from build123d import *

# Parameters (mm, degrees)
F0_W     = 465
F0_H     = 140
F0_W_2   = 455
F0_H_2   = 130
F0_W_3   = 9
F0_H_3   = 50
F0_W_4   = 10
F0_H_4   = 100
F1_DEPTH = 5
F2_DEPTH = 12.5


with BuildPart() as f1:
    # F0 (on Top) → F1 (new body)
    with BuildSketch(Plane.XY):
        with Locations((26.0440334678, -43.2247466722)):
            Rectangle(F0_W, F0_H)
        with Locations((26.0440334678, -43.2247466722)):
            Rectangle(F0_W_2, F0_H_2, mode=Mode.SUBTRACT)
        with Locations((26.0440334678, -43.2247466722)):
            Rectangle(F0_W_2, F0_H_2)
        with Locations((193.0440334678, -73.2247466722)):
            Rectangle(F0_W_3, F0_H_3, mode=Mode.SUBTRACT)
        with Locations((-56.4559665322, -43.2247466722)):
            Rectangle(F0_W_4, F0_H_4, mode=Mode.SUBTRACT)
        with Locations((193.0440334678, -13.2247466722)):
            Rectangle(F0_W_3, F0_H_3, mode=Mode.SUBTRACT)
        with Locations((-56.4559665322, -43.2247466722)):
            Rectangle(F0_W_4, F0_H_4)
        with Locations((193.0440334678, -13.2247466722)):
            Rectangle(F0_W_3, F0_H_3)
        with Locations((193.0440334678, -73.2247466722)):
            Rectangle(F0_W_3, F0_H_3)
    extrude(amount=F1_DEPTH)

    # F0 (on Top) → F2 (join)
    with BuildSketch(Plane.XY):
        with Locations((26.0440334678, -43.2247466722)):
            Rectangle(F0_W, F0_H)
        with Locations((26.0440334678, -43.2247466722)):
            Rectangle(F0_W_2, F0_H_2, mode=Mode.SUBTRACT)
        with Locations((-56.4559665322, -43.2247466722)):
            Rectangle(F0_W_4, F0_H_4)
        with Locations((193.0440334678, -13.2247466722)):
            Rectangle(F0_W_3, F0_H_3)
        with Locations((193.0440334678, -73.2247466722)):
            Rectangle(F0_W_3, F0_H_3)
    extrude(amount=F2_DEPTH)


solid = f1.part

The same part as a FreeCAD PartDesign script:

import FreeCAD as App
import Part
import Sketcher


def add_polygon(sketch, points):
    """Adds a closed chain of lines whose ends are joined by coincident constraints."""
    first, n = sketch.GeometryCount, len(points)
    for a, b in zip(points, points[1:] + points[:1]):
        sketch.addGeometry(Part.LineSegment(App.Vector(*a, 0), App.Vector(*b, 0)), False)
    for i in range(n):
        sketch.addConstraint(Sketcher.Constraint("Coincident", first + i, 2, first + (i + 1) % n, 1))

doc = App.newDocument("Part")
body = doc.addObject("PartDesign::Body", "Body")

# Sketch on XY plane
sketch1 = doc.addObject("Sketcher::SketchObject", "Sketch")
body.addObject(sketch1)
sketch1.AttachmentSupport = (doc.XY_Plane, [""])
sketch1.MapMode = "FlatFace"
add_polygon(sketch1, [(-206, 27), (-206, -113), (259, -113), (259, 27)])  # lines 0-3
sketch1.addConstraint([
    Sketcher.Constraint("Vertical", 0),
    Sketcher.Constraint("Horizontal", 1),
    Sketcher.Constraint("Vertical", 2),
    Sketcher.Constraint("Horizontal", 3),
    Sketcher.Constraint("DistanceX", 1, 1, 1, 2, 465.0),
    Sketcher.Constraint("DistanceY", 0, 2, 0, 1, 140.0),
    Sketcher.Constraint("DistanceX", 0, 2, -1, 1, 206.455967),
    Sketcher.Constraint("DistanceY", 0, 2, -1, 1, 113.224747),
])
pad1 = doc.addObject("PartDesign::Pad", "Pad")
body.addObject(pad1)
pad1.Profile = sketch1
pad1.Length = 5

# Sketch on XY plane
sketch2 = doc.addObject("Sketcher::SketchObject", "Sketch001")
body.addObject(sketch2)
sketch2.AttachmentSupport = (doc.XY_Plane, [""])
sketch2.MapMode = "FlatFace"
add_polygon(sketch2, [(-206, 27), (-206, -113), (259, -113), (259, 27)])  # lines 0-3
add_polygon(sketch2, [(254, -108), (-201, -108), (-201, 22), (254, 22)])  # lines 4-7
add_polygon(sketch2, [(-61, 7), (-61, -93), (-51, -93), (-51, 7)])  # lines 8-11
add_polygon(sketch2, [(189, 12), (189, -38), (198, -38), (198, 12)])  # lines 12-15
add_polygon(sketch2, [(189, -48), (189, -98), (198, -98), (198, -48)])  # lines 16-19
sketch2.addConstraint([
    Sketcher.Constraint("Vertical", 0),
    Sketcher.Constraint("Horizontal", 1),
    Sketcher.Constraint("Vertical", 2),
    Sketcher.Constraint("Horizontal", 3),
    Sketcher.Constraint("Horizontal", 4),
    Sketcher.Constraint("Vertical", 5),
    Sketcher.Constraint("Horizontal", 6),
    Sketcher.Constraint("Vertical", 7),
    Sketcher.Constraint("Vertical", 8),
    Sketcher.Constraint("Horizontal", 9),
    Sketcher.Constraint("Vertical", 10),
    Sketcher.Constraint("Horizontal", 11),
    Sketcher.Constraint("Vertical", 12),
    Sketcher.Constraint("Horizontal", 13),
    Sketcher.Constraint("Vertical", 14),
    Sketcher.Constraint("Horizontal", 15),
    Sketcher.Constraint("Vertical", 16),
    Sketcher.Constraint("Horizontal", 17),
    Sketcher.Constraint("Vertical", 18),
    Sketcher.Constraint("Horizontal", 19),
    Sketcher.Constraint("Vertical", 15, 2, 16, 2),
    Sketcher.Constraint("Vertical", 14, 2, 17, 2),
    Sketcher.Constraint("Equal", 14, 16),
    Sketcher.Constraint("DistanceX", 1, 1, 1, 2, 465.0),
    Sketcher.Constraint("DistanceX", 4, 2, 4, 1, 455.0),
    Sketcher.Constraint("DistanceX", 9, 1, 9, 2, 10.0),
    Sketcher.Constraint("DistanceX", 13, 1, 13, 2, 9.0),
    Sketcher.Constraint("DistanceY", 0, 2, 0, 1, 140.0),
    Sketcher.Constraint("DistanceY", 5, 1, 5, 2, 130.0),
    Sketcher.Constraint("DistanceY", 8, 2, 8, 1, 100.0),
    Sketcher.Constraint("DistanceY", 12, 2, 12, 1, 50.0),
    Sketcher.Constraint("DistanceX", 0, 2, 4, 2, 5.0),
    Sketcher.Constraint("DistanceY", 0, 2, 4, 2, 5.0),
    Sketcher.Constraint("DistanceX", 4, 2, 8, 2, 140.0),
    Sketcher.Constraint("DistanceY", 4, 2, 8, 2, 15.0),
    Sketcher.Constraint("DistanceX", 12, 2, 6, 2, 65.0),
    Sketcher.Constraint("DistanceY", 12, 2, 6, 2, 60.0),
    Sketcher.Constraint("DistanceY", 16, 2, 12, 2, 60.0),
    Sketcher.Constraint("DistanceX", 0, 2, -1, 1, 206.455967),
    Sketcher.Constraint("DistanceY", 0, 2, -1, 1, 113.224747),
])
pad2 = doc.addObject("PartDesign::Pad", "Pad001")
body.addObject(pad2)
pad2.Profile = sketch2
pad2.Length = 12.5

doc.recompute()
